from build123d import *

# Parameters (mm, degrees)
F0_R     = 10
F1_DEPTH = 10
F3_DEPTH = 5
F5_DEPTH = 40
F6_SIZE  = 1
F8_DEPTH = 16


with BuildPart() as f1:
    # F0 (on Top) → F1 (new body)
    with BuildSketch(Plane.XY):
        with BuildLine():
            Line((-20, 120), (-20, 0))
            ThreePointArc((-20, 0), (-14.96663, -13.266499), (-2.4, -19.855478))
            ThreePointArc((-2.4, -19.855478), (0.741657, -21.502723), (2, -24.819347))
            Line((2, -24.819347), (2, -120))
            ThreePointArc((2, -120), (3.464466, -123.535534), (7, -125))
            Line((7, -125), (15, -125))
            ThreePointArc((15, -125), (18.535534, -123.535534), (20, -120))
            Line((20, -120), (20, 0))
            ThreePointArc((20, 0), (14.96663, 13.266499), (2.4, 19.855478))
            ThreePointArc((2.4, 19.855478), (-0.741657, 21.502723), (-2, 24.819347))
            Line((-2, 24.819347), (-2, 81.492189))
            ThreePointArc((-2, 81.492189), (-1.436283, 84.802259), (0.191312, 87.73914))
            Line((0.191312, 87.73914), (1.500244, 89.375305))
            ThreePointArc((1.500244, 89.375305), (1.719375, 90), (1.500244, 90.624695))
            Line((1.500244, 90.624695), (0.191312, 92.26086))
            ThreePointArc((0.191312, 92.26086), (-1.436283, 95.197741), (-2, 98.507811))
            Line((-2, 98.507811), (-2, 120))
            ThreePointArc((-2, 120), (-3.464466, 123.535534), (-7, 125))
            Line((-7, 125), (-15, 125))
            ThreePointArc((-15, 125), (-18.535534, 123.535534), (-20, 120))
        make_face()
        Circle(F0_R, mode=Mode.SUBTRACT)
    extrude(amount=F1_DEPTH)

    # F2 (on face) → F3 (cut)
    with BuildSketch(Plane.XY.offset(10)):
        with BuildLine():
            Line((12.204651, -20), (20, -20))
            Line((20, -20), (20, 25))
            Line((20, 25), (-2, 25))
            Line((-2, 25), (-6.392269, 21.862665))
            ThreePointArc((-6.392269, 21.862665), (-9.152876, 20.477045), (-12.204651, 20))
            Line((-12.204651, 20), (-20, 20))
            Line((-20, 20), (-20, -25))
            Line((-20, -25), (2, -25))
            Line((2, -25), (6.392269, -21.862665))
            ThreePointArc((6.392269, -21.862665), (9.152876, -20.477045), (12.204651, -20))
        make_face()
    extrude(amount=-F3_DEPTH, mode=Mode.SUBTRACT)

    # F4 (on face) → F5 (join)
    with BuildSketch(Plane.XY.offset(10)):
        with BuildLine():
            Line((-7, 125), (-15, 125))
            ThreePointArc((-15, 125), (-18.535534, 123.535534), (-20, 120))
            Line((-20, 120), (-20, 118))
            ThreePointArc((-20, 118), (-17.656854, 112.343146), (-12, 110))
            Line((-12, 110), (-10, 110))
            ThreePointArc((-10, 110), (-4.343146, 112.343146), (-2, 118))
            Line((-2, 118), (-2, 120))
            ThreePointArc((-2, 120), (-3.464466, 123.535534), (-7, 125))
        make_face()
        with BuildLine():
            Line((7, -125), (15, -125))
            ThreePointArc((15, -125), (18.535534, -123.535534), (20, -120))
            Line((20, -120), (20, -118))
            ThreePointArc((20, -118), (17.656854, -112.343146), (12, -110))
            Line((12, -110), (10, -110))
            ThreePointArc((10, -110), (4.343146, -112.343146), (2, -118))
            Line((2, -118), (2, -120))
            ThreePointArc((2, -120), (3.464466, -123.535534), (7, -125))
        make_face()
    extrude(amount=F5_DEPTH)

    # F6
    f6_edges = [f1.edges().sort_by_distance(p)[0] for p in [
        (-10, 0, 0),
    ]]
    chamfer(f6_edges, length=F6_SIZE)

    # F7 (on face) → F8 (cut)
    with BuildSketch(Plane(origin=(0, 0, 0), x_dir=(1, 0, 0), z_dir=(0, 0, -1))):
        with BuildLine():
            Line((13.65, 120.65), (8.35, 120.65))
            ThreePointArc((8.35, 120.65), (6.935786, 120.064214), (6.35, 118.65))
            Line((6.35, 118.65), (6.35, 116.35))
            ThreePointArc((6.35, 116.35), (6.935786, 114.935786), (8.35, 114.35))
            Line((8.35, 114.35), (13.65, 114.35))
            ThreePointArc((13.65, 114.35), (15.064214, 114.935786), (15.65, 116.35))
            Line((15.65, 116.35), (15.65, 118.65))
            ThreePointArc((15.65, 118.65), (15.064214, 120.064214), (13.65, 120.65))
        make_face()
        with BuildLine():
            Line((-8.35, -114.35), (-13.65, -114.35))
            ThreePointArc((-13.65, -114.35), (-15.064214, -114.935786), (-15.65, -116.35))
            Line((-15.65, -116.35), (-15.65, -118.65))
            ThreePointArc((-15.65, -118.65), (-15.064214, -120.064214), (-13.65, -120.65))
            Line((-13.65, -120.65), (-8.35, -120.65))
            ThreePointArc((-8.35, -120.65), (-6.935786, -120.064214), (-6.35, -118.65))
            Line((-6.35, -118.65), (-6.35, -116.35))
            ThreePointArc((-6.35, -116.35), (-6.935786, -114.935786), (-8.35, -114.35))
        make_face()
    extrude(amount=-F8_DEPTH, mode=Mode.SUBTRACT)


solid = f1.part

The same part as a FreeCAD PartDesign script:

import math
import FreeCAD as App
import Part
import Sketcher

V = App.Vector


def edges_at(feature, points):
    """Names of the edges that pass closest to the given points."""
    edges = feature.Shape.Edges
    near = lambda p: min(range(len(edges)), key=lambda i: edges[i].distToShape(Part.Vertex(*p))[0])
    return sorted({f"Edge{near(p) + 1}" for p in points})

doc = App.newDocument("Part")
body = doc.addObject("PartDesign::Body", "Body")

sketch1 = body.newObject("Sketcher::SketchObject", "Sketch")
sketch1.AttachmentSupport = (doc.getObject("XY_Plane"), [""])
sketch1.MapMode = "FlatFace"
sketch1.addGeometry(Part.LineSegment(V(-20, 120, 0), V(-20, 0, 0)), False)
sketch1.addGeometry(Part.ArcOfCircle(Part.Circle(V(0, 0, 0), V(0, 0, 1), 20), math.radians(179.999999), math.radians(263.107898)), False)
sketch1.addGeometry(Part.ArcOfCircle(Part.Circle(V(-3.000002, -24.819349, 0), V(0, 0, 1), 5.000002), math.radians(0.000021), math.radians(83.107882)), False)
sketch1.addGeometry(Part.LineSegment(V(2, -24.819347, 0), V(2, -120, 0)), False)
sketch1.addGeometry(Part.ArcOfCircle(Part.Circle(V(7, -120, 0), V(0, 0, 1), 5), math.radians(179.999996), math.radians(270.000004)), False)
sketch1.addGeometry(Part.LineSegment(V(7, -125, 0), V(15, -125, 0)), False)
sketch1.addGeometry(Part.ArcOfCircle(Part.Circle(V(15, -120, 0), V(0, 0, 1), 5), math.radians(-90.000004), math.radians(0.000004)), False)
sketch1.addGeometry(Part.LineSegment(V(20, -120, 0), V(20, 0, 0)), False)
sketch1.addGeometry(Part.ArcOfCircle(Part.Circle(V(0, 0, 0), V(0, 0, 1), 20), math.radians(-0.000001), math.radians(83.107898)), False)
sketch1.addGeometry(Part.ArcOfCircle(Part.Circle(V(3.000002, 24.819349, 0), V(0, 0, 1), 5.000002), math.radians(-179.999979), math.radians(-96.892118)), False)
sketch1.addGeometry(Part.LineSegment(V(-2, 24.819347, 0), V(-2, 81.492189, 0)), False)
sketch1.addGeometry(Part.ArcOfCircle(Part.Circle(V(8.000002, 81.492189, 0), V(0, 0, 1), 10.000002), math.radians(141.340195), math.radians(179.999998)), False)
sketch1.addGeometry(Part.LineSegment(V(0.191312, 87.73914, 0), V(1.500244, 89.375305, 0)), False)
sketch1.addGeometry(Part.ArcOfCircle(Part.Circle(V(0.719374, 90, 0), V(0, 0, 1), 1.000001), math.radians(-38.65978), math.radians(38.65978)), False)
sketch1.addGeometry(Part.LineSegment(V(1.500244, 90.624695, 0), V(0.191312, 92.26086, 0)), False)
sketch1.addGeometry(Part.ArcOfCircle(Part.Circle(V(8.000002, 98.507811, 0), V(0, 0, 1), 10.000002), math.radians(-179.999998), math.radians(-141.340195)), False)
sketch1.addGeometry(Part.LineSegment(V(-2, 98.507811, 0), V(-2, 120, 0)), False)
sketch1.addGeometry(Part.ArcOfCircle(Part.Circle(V(-7, 120, 0), V(0, 0, 1), 5), math.radians(-0.000004), math.radians(90.000004)), False)
sketch1.addGeometry(Part.LineSegment(V(-7, 125, 0), V(-15, 125, 0)), False)
sketch1.addGeometry(Part.ArcOfCircle(Part.Circle(V(-15, 120, 0), V(0, 0, 1), 5), math.radians(89.999996), math.radians(180.000004)), False)
sketch1.addGeometry(Part.Circle(V(0, 0, 0), V(0, 0, 1), 10), False)
sketch1.addConstraint(Sketcher.Constraint("Tangent", 0, 2, 1, 1))
sketch1.addConstraint(Sketcher.Constraint("Tangent", 1, 2, 2, 2))
sketch1.addConstraint(Sketcher.Constraint("Tangent", 2, 1, 3, 1))
sketch1.addConstraint(Sketcher.Constraint("Tangent", 3, 2, 4, 1))
sketch1.addConstraint(Sketcher.Constraint("Tangent", 4, 2, 5, 1))
sketch1.addConstraint(Sketcher.Constraint("Tangent", 5, 2, 6, 1))
sketch1.addConstraint(Sketcher.Constraint("Tangent", 6, 2, 7, 1))
sketch1.addConstraint(Sketcher.Constraint("Tangent", 7, 2, 8, 1))
sketch1.addConstraint(Sketcher.Constraint("Tangent", 8, 2, 9, 2))
sketch1.addConstraint(Sketcher.Constraint("Tangent", 9, 1, 10, 1))
sketch1.addConstraint(Sketcher.Constraint("Tangent", 10, 2, 11, 2))
sketch1.addConstraint(Sketcher.Constraint("Tangent", 11, 1, 12, 1))
sketch1.addConstraint(Sketcher.Constraint("Tangent", 12, 2, 13, 1))
sketch1.addConstraint(Sketcher.Constraint("Tangent", 13, 2, 14, 1))
sketch1.addConstraint(Sketcher.Constraint("Tangent", 14, 2, 15, 2))
sketch1.addConstraint(Sketcher.Constraint("Tangent", 15, 1, 16, 1))
sketch1.addConstraint(Sketcher.Constraint("Tangent", 16, 2, 17, 1))
sketch1.addConstraint(Sketcher.Constraint("Tangent", 17, 2, 18, 1))
sketch1.addConstraint(Sketcher.Constraint("Tangent", 18, 2, 19, 1))
sketch1.addConstraint(Sketcher.Constraint("Tangent", 19, 2, 0, 1))
sketch1.addConstraint(Sketcher.Constraint("Vertical", 0))
sketch1.addConstraint(Sketcher.Constraint("Vertical", 3))
sketch1.addConstraint(Sketcher.Constraint("Horizontal", 5))
sketch1.addConstraint(Sketcher.Constraint("Vertical", 7))
sketch1.addConstraint(Sketcher.Constraint("Vertical", 10))
sketch1.addConstraint(Sketcher.Constraint("Vertical", 16))
sketch1.addConstraint(Sketcher.Constraint("Horizontal", 18))
sketch1.addConstraint(Sketcher.Constraint("Coincident", 1, 3, -1, 1))
sketch1.addConstraint(Sketcher.Constraint("Coincident", 8, 3, -1, 1))
sketch1.addConstraint(Sketcher.Constraint("Coincident", 20, 3, -1, 1))
sketch1.addConstraint(Sketcher.Constraint("Equal", 2, 4))
sketch1.addConstraint(Sketcher.Constraint("Equal", 4, 6))
sketch1.addConstraint(Sketcher.Constraint("Equal", 1, 8))
sketch1.addConstraint(Sketcher.Constraint("Equal", 6, 9))
sketch1.addConstraint(Sketcher.Constraint("Equal", 11, 15))
sketch1.addConstraint(Sketcher.Constraint("Equal", 9, 17))
sketch1.addConstraint(Sketcher.Constraint("Equal", 17, 19))
sketch1.addConstraint(Sketcher.Constraint("Symmetric", 4, 3, 17, 3, -1, 1))
sketch1.addConstraint(Sketcher.Constraint("Vertical", 11, 3, 15, 3))
sketch1.addConstraint(Sketcher.Constraint("Vertical", 12, 2, 13, 2))
sketch1.addConstraint(Sketcher.Constraint("Diameter", 20, 20.0))
sketch1.addConstraint(Sketcher.Constraint("Radius", 1, 20.0))
sketch1.addConstraint(Sketcher.Constraint("Radius", 2, 5.000002))
sketch1.addConstraint(Sketcher.Constraint("Radius", 13, 1.000001))
sketch1.addConstraint(Sketcher.Constraint("DistanceX", 5, 1, 5, 2, 8.0))
sketch1.addConstraint(Sketcher.Constraint("DistanceY", 0, 2, 0, 1, 120.0))
sketch1.addConstraint(Sketcher.Constraint("DistanceY", -1, 1, 13, 3, 90.0))
sketch1.addConstraint(Sketcher.Constraint("DistanceX", 9, 3, 11, 3, 5.000001))
sketch1.addConstraint(Sketcher.Constraint("DistanceY", 10, 1, 10, 2, 56.672842))
sketch1.addConstraint(Sketcher.Constraint("DistanceY", -1, 1, 11, 1, 87.73914))
pad1 = body.newObject("PartDesign::Pad", "Pad")
pad1.Profile = sketch1
pad1.Length = 10

sketch2 = body.newObject("Sketcher::SketchObject", "Sketch001")
sketch2.AttachmentSupport = (doc.getObject("XY_Plane"), [""])
sketch2.MapMode = "FlatFace"
sketch2.AttachmentOffset = App.Placement(V(0, 0, 10), App.Rotation())
sketch2.addGeometry(Part.LineSegment(V(12.204651, -20, 0), V(20, -20, 0)), False)
sketch2.addGeometry(Part.LineSegment(V(20, -20, 0), V(20, 25, 0)), False)
sketch2.addGeometry(Part.LineSegment(V(20, 25, 0), V(-2, 25, 0)), False)
sketch2.addGeometry(Part.LineSegment(V(-2, 25, 0), V(-6.392269, 21.862665, 0)), False)
sketch2.addGeometry(Part.ArcOfCircle(Part.Circle(V(-12.204651, 30, 0), V(0, 0, 1), 10), math.radians(-90.000002), math.radians(-54.462326)), False)
sketch2.addGeometry(Part.LineSegment(V(-12.204651, 20, 0), V(-20, 20, 0)), False)
sketch2.addGeometry(Part.LineSegment(V(-20, 20, 0), V(-20, -25, 0)), False)
sketch2.addGeometry(Part.LineSegment(V(-20, -25, 0), V(2, -25, 0)), False)
sketch2.addGeometry(Part.LineSegment(V(2, -25, 0), V(6.392269, -21.862665, 0)), False)
sketch2.addGeometry(Part.ArcOfCircle(Part.Circle(V(12.204651, -30, 0), V(0, 0, 1), 10), math.radians(89.999998), math.radians(125.537674)), False)
sketch2.addConstraint(Sketcher.Constraint("Coincident", 0, 2, 1, 1))
sketch2.addConstraint(Sketcher.Constraint("Coincident", 1, 2, 2, 1))
sketch2.addConstraint(Sketcher.Constraint("Coincident", 2, 2, 3, 1))
sketch2.addConstraint(Sketcher.Constraint("Tangent", 3, 2, 4, 2))
sketch2.addConstraint(Sketcher.Constraint("Tangent", 4, 1, 5, 1))
sketch2.addConstraint(Sketcher.Constraint("Coincident", 5, 2, 6, 1))
sketch2.addConstraint(Sketcher.Constraint("Coincident", 6, 2, 7, 1))
sketch2.addConstraint(Sketcher.Constraint("Coincident", 7, 2, 8, 1))
sketch2.addConstraint(Sketcher.Constraint("Tangent", 8, 2, 9, 2))
sketch2.addConstraint(Sketcher.Constraint("Tangent", 9, 1, 0, 1))
sketch2.addConstraint(Sketcher.Constraint("Horizontal", 0))
sketch2.addConstraint(Sketcher.Constraint("Vertical", 1))
sketch2.addConstraint(Sketcher.Constraint("Horizontal", 2))
sketch2.addConstraint(Sketcher.Constraint("Horizontal", 5))
sketch2.addConstraint(Sketcher.Constraint("Vertical", 6))
sketch2.addConstraint(Sketcher.Constraint("Horizontal", 7))
sketch2.addConstraint(Sketcher.Constraint("Equal", 4, 9))
sketch2.addConstraint(Sketcher.Constraint("Symmetric", 4, 3, 9, 3, -1, 1))
sketch2.addConstraint(Sketcher.Constraint("Symmetric", 1, 2, 6, 2, -1, 1))
sketch2.addConstraint(Sketcher.Constraint("Parallel", 3, 8))
sketch2.addConstraint(Sketcher.Constraint("Radius", 4, 10.0))
sketch2.addConstraint(Sketcher.Constraint("DistanceX", 2, 2, 2, 1, 22.0))
sketch2.addConstraint(Sketcher.Constraint("DistanceY", 1, 1, 1, 2, 45.0))
sketch2.addConstraint(Sketcher.Constraint("DistanceY", -1, 1, 4, 3, 30.0))
sketch2.addConstraint(Sketcher.Constraint("DistanceX", -1, 1, 0, 2, 20.0))
sketch2.addConstraint(Sketcher.Constraint("DistanceX", 0, 1, 0, 2, 7.795349))
pocket1 = body.newObject("PartDesign::Pocket", "Pocket")
pocket1.Profile = sketch2
pocket1.Length = 5

sketch3 = body.newObject("Sketcher::SketchObject", "Sketch002")
sketch3.AttachmentSupport = (doc.getObject("XY_Plane"), [""])
sketch3.MapMode = "FlatFace"
sketch3.AttachmentOffset = App.Placement(V(0, 0, 10), App.Rotation())
sketch3.addGeometry(Part.LineSegment(V(-7, 125, 0), V(-15, 125, 0)), False)
sketch3.addGeometry(Part.ArcOfCircle(Part.Circle(V(-15, 120, 0), V(0, 0, 1), 5), math.radians(89.999996), math.radians(180.000004)), False)
sketch3.addGeometry(Part.LineSegment(V(-20, 120, 0), V(-20, 118, 0)), False)
sketch3.addGeometry(Part.ArcOfCircle(Part.Circle(V(-11.999999, 118.000001, 0), V(0, 0, 1), 8.000001), math.radians(-179.999994), math.radians(-90.000006)), False)
sketch3.addGeometry(Part.LineSegment(V(-12, 110, 0), V(-10, 110, 0)), False)
sketch3.addGeometry(Part.ArcOfCircle(Part.Circle(V(-10.000001, 118.000001, 0), V(0, 0, 1), 8.000001), math.radians(-89.999994), math.radians(-0.000006)), False)
sketch3.addGeometry(Part.LineSegment(V(-2, 118, 0), V(-2, 120, 0)), False)
sketch3.addGeometry(Part.ArcOfCircle(Part.Circle(V(-7, 120, 0), V(0, 0, 1), 5), math.radians(-0.000004), math.radians(90.000004)), False)
sketch3.addGeometry(Part.LineSegment(V(7, -125, 0), V(15, -125, 0)), False)
sketch3.addGeometry(Part.ArcOfCircle(Part.Circle(V(15, -120, 0), V(0, 0, 1), 5), math.radians(-90.000004), math.radians(0.000004)), False)
sketch3.addGeometry(Part.LineSegment(V(20, -120, 0), V(20, -118, 0)), False)
sketch3.addGeometry(Part.ArcOfCircle(Part.Circle(V(11.999999, -118.000001, 0), V(0, 0, 1), 8.000001), math.radians(0.000006), math.radians(89.999994)), False)
sketch3.addGeometry(Part.LineSegment(V(12, -110, 0), V(10, -110, 0)), False)
sketch3.addGeometry(Part.ArcOfCircle(Part.Circle(V(10.000001, -118.000001, 0), V(0, 0, 1), 8.000001), math.radians(90.000006), math.radians(179.999994)), False)
sketch3.addGeometry(Part.LineSegment(V(2, -118, 0), V(2, -120, 0)), False)
sketch3.addGeometry(Part.ArcOfCircle(Part.Circle(V(7, -120, 0), V(0, 0, 1), 5), math.radians(179.999996), math.radians(270.000004)), False)
sketch3.addConstraint(Sketcher.Constraint("Tangent", 0, 2, 1, 1))
sketch3.addConstraint(Sketcher.Constraint("Tangent", 1, 2, 2, 1))
sketch3.addConstraint(Sketcher.Constraint("Tangent", 2, 2, 3, 1))
sketch3.addConstraint(Sketcher.Constraint("Tangent", 3, 2, 4, 1))
sketch3.addConstraint(Sketcher.Constraint("Tangent", 4, 2, 5, 1))
sketch3.addConstraint(Sketcher.Constraint("Tangent", 5, 2, 6, 1))
sketch3.addConstraint(Sketcher.Constraint("Tangent", 6, 2, 7, 1))
sketch3.addConstraint(Sketcher.Constraint("Tangent", 7, 2, 0, 1))
sketch3.addConstraint(Sketcher.Constraint("Tangent", 8, 2, 9, 1))
sketch3.addConstraint(Sketcher.Constraint("Tangent", 9, 2, 10, 1))
sketch3.addConstraint(Sketcher.Constraint("Tangent", 10, 2, 11, 1))
sketch3.addConstraint(Sketcher.Constraint("Tangent", 11, 2, 12, 1))
sketch3.addConstraint(Sketcher.Constraint("Tangent", 12, 2, 13, 1))
sketch3.addConstraint(Sketcher.Constraint("Tangent", 13, 2, 14, 1))
sketch3.addConstraint(Sketcher.Constraint("Tangent", 14, 2, 15, 1))
sketch3.addConstraint(Sketcher.Constraint("Tangent", 15, 2, 8, 1))
sketch3.addConstraint(Sketcher.Constraint("Horizontal", 0))
sketch3.addConstraint(Sketcher.Constraint("Vertical", 2))
sketch3.addConstraint(Sketcher.Constraint("Horizontal", 4))
sketch3.addConstraint(Sketcher.Constraint("Vertical", 6))
sketch3.addConstraint(Sketcher.Constraint("Horizontal", 8))
sketch3.addConstraint(Sketcher.Constraint("Vertical", 10))
sketch3.addConstraint(Sketcher.Constraint("Horizontal", 12))
sketch3.addConstraint(Sketcher.Constraint("Vertical", 14))
sketch3.addConstraint(Sketcher.Constraint("Equal", 3, 5))
sketch3.addConstraint(Sketcher.Constraint("Equal", 1, 7))
sketch3.addConstraint(Sketcher.Constraint("Equal", 7, 9))
sketch3.addConstraint(Sketcher.Constraint("Equal", 5, 11))
sketch3.addConstraint(Sketcher.Constraint("Equal", 11, 13))
sketch3.addConstraint(Sketcher.Constraint("Equal", 9, 15))
sketch3.addConstraint(Sketcher.Constraint("Symmetric", 1, 3, 9, 3, -1, 1))
sketch3.addConstraint(Sketcher.Constraint("Symmetric", 5, 3, 13, 3, -1, 1))
sketch3.addConstraint(Sketcher.Constraint("Equal", 12, 2))
sketch3.addConstraint(Sketcher.Constraint("Radius", 1, 5.0))
sketch3.addConstraint(Sketcher.Constraint("Radius", 3, 8.000001))
sketch3.addConstraint(Sketcher.Constraint("DistanceX", 0, 2, 0, 1, 8.0))
sketch3.addConstraint(Sketcher.Constraint("DistanceX", 1, 3, -1, 1, 15.0))
sketch3.addConstraint(Sketcher.Constraint("DistanceY", -1, 1, 1, 3, 120.0))
pad2 = body.newObject("PartDesign::Pad", "Pad001")
pad2.Profile = sketch3
pad2.Length = 40
doc.recompute()

chamfer = body.newObject("PartDesign::Chamfer", "Chamfer")
chamfer.Base = (pad2, edges_at(pad2, [(-10, 0, 0)]))
chamfer.Size = 1

sketch4 = body.newObject("Sketcher::SketchObject", "Sketch003")
sketch4.AttachmentSupport = (doc.getObject("XY_Plane"), [""])
sketch4.MapMode = "FlatFace"
sketch4.addGeometry(Part.LineSegment(V(13.65, -120.65, 0), V(8.35, -120.65, 0)), False)
sketch4.addGeometry(Part.ArcOfCircle(Part.Circle(V(8.349999, -118.650001, 0), V(0, 0, 1), 1.999999), math.radians(179.999957), math.radians(270.000043)), False)
sketch4.addGeometry(Part.LineSegment(V(6.35, -118.65, 0), V(6.35, -116.35, 0)), False)
sketch4.addGeometry(Part.ArcOfCircle(Part.Circle(V(8.349999, -116.349999, 0), V(0, 0, 1), 1.999999), math.radians(89.999957), math.radians(180.000043)), False)
sketch4.addGeometry(Part.LineSegment(V(8.35, -114.35, 0), V(13.65, -114.35, 0)), False)
sketch4.addGeometry(Part.ArcOfCircle(Part.Circle(V(13.650001, -116.349999, 0), V(0, 0, 1), 1.999999), math.radians(-0.000043), math.radians(90.000043)), False)
sketch4.addGeometry(Part.LineSegment(V(15.65, -116.35, 0), V(15.65, -118.65, 0)), False)
sketch4.addGeometry(Part.ArcOfCircle(Part.Circle(V(13.650001, -118.650001, 0), V(0, 0, 1), 1.999999), math.radians(-90.000043), math.radians(0.000043)), False)
sketch4.addGeometry(Part.LineSegment(V(-8.35, 114.35, 0), V(-13.65, 114.35, 0)), False)
sketch4.addGeometry(Part.ArcOfCircle(Part.Circle(V(-13.650001, 116.349999, 0), V(0, 0, 1), 1.999999), math.radians(179.999957), math.radians(270.000043)), False)
sketch4.addGeometry(Part.LineSegment(V(-15.65, 116.35, 0), V(-15.65, 118.65, 0)), False)
sketch4.addGeometry(Part.ArcOfCircle(Part.Circle(V(-13.650001, 118.650001, 0), V(0, 0, 1), 1.999999), math.radians(89.999957), math.radians(180.000043)), False)
sketch4.addGeometry(Part.LineSegment(V(-13.65, 120.65, 0), V(-8.35, 120.65, 0)), False)
sketch4.addGeometry(Part.ArcOfCircle(Part.Circle(V(-8.349999, 118.650001, 0), V(0, 0, 1), 1.999999), math.radians(-0.000043), math.radians(90.000043)), False)
sketch4.addGeometry(Part.LineSegment(V(-6.35, 118.65, 0), V(-6.35, 116.35, 0)), False)
sketch4.addGeometry(Part.ArcOfCircle(Part.Circle(V(-8.349999, 116.349999, 0), V(0, 0, 1), 1.999999), math.radians(-90.000043), math.radians(0.000043)), False)
sketch4.addConstraint(Sketcher.Constraint("Tangent", 0, 2, 1, 2))
sketch4.addConstraint(Sketcher.Constraint("Tangent", 1, 1, 2, 1))
sketch4.addConstraint(Sketcher.Constraint("Tangent", 2, 2, 3, 2))
sketch4.addConstraint(Sketcher.Constraint("Tangent", 3, 1, 4, 1))
sketch4.addConstraint(Sketcher.Constraint("Tangent", 4, 2, 5, 2))
sketch4.addConstraint(Sketcher.Constraint("Tangent", 5, 1, 6, 1))
sketch4.addConstraint(Sketcher.Constraint("Tangent", 6, 2, 7, 2))
sketch4.addConstraint(Sketcher.Constraint("Tangent", 7, 1, 0, 1))
sketch4.addConstraint(Sketcher.Constraint("Tangent", 8, 2, 9, 2))
sketch4.addConstraint(Sketcher.Constraint("Tangent", 9, 1, 10, 1))
sketch4.addConstraint(Sketcher.Constraint("Tangent", 10, 2, 11, 2))
sketch4.addConstraint(Sketcher.Constraint("Tangent", 11, 1, 12, 1))
sketch4.addConstraint(Sketcher.Constraint("Tangent", 12, 2, 13, 2))
sketch4.addConstraint(Sketcher.Constraint("Tangent", 13, 1, 14, 1))
sketch4.addConstraint(Sketcher.Constraint("Tangent", 14, 2, 15, 2))
sketch4.addConstraint(Sketcher.Constraint("Tangent", 15, 1, 8, 1))
sketch4.addConstraint(Sketcher.Constraint("Horizontal", 0))
sketch4.addConstraint(Sketcher.Constraint("Vertical", 2))
sketch4.addConstraint(Sketcher.Constraint("Horizontal", 4))
sketch4.addConstraint(Sketcher.Constraint("Vertical", 6))
sketch4.addConstraint(Sketcher.Constraint("Horizontal", 8))
sketch4.addConstraint(Sketcher.Constraint("Vertical", 10))
sketch4.addConstraint(Sketcher.Constraint("Horizontal", 12))
sketch4.addConstraint(Sketcher.Constraint("Vertical", 14))
sketch4.addConstraint(Sketcher.Constraint("Equal", 1, 3))
sketch4.addConstraint(Sketcher.Constraint("Equal", 3, 5))
sketch4.addConstraint(Sketcher.Constraint("Equal", 5, 7))
sketch4.addConstraint(Sketcher.Constraint("Equal", 7, 9))
sketch4.addConstraint(Sketcher.Constraint("Equal", 9, 11))
sketch4.addConstraint(Sketcher.Constraint("Equal", 11, 13))
sketch4.addConstraint(Sketcher.Constraint("Equal", 13, 15))
sketch4.addConstraint(Sketcher.Constraint("Symmetric", 5, 3, 9, 3, -1, 1))
sketch4.addConstraint(Sketcher.Constraint("Symmetric", 1, 3, 13, 3, -1, 1))
sketch4.addConstraint(Sketcher.Constraint("Radius", 1, 1.999999))
sketch4.addConstraint(Sketcher.Constraint("DistanceX", 0, 2, 0, 1, 5.3))
sketch4.addConstraint(Sketcher.Constraint("DistanceY", 2, 1, 2, 2, 2.3))
sketch4.addConstraint(Sketcher.Constraint("DistanceX", 9, 3, 3, 3, 22.0))
sketch4.addConstraint(Sketcher.Constraint("DistanceY", 1, 3, 9, 3, 235.0))
pocket2 = body.newObject("PartDesign::Pocket", "Pocket001")
pocket2.Profile = sketch4
pocket2.Length = 16
pocket2.Reversed = True

doc.recompute()
